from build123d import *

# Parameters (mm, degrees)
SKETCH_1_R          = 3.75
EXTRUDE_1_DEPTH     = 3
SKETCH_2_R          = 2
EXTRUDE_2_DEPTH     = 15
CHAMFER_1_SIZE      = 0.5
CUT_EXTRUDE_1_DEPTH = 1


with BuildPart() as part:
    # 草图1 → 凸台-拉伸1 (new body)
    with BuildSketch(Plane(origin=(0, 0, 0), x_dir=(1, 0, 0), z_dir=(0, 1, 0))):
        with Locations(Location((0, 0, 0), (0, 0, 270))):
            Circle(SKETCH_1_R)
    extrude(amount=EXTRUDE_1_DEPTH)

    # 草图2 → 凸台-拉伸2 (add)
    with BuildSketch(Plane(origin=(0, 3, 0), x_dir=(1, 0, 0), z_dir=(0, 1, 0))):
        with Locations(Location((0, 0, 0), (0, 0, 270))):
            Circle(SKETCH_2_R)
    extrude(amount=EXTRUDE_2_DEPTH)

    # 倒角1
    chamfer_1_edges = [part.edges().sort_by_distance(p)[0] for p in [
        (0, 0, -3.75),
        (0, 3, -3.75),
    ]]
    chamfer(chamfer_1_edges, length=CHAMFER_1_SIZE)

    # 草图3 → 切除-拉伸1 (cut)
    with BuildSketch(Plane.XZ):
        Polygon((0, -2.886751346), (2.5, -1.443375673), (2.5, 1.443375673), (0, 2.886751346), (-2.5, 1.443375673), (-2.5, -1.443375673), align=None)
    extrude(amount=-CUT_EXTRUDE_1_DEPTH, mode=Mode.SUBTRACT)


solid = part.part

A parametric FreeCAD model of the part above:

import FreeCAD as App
import Part
import Sketcher
from FreeCAD import Vector
Q = App.Units.Quantity


def edges_at(feature, points):
    """Names of the edges that pass closest to the given points."""
    edges = feature.Shape.Edges
    near = lambda p: min(range(len(edges)), key=lambda i: edges[i].distToShape(Part.Vertex(*p))[0])
    return sorted({f"Edge{near(p) + 1}" for p in points})

doc = App.newDocument("Part")
body = doc.addObject("PartDesign::Body", "Body")

sketch1 = doc.addObject("Sketcher::SketchObject", "Sketch")
body.addObject(sketch1)
sketch1.AttachmentSupport = (doc.XZ_Plane, [""])
sketch1.MapMode = "FlatFace"
sketch1.addGeometry(Part.Circle(Vector(0, 0, 0), Vector(0, 0, 1), 3.75), False)
sketch1.addConstraint(Sketcher.Constraint("Coincident", 0, 3, -1, 1))
sketch1.addConstraint(Sketcher.Constraint("Diameter", 0, 7.5))
pad1 = doc.addObject("PartDesign::Pad", "Pad")
body.addObject(pad1)
pad1.Profile = sketch1
pad1.Length = 3
pad1.Reversed = True

sketch2 = doc.addObject("Sketcher::SketchObject", "Sketch001")
body.addObject(sketch2)
sketch2.AttachmentSupport = (doc.XZ_Plane, [""])
sketch2.MapMode = "FlatFace"
sketch2.AttachmentOffset = App.Placement(Vector(0, 0, -3), App.Rotation())
sketch2.addGeometry(Part.Circle(Vector(0, 0, 0), Vector(0, 0, 1), 2), False)
sketch2.addConstraint(Sketcher.Constraint("Coincident", 0, 3, -1, 1))
sketch2.addConstraint(Sketcher.Constraint("Diameter", 0, 4.0))
pad2 = doc.addObject("PartDesign::Pad", "Pad001")
body.addObject(pad2)
pad2.Profile = sketch2
pad2.Length = 15
pad2.Reversed = True
doc.recompute()

chamfer = doc.addObject("PartDesign::Chamfer", "Chamfer")
body.addObject(chamfer)
chamfer.Base = (pad2, edges_at(pad2, [(0, 0, -3.75), (0, 3, -3.75)]))
chamfer.Size = 0.5

sketch3 = doc.addObject("Sketcher::SketchObject", "Sketch002")
body.addObject(sketch3)
sketch3.AttachmentSupport = (doc.XZ_Plane, [""])
sketch3.MapMode = "FlatFace"
sketch3.addGeometry(Part.LineSegment(Vector(0, -2.886751, 0), Vector(2.5, -1.443376, 0)), False)
sketch3.addGeometry(Part.LineSegment(Vector(2.5, -1.443376, 0), Vector(2.5, 1.443376, 0)), False)
sketch3.addGeometry(Part.LineSegment(Vector(2.5, 1.443376, 0), Vector(0, 2.886751, 0)), False)
sketch3.addGeometry(Part.LineSegment(Vector(0, 2.886751, 0), Vector(-2.5, 1.443376, 0)), False)
sketch3.addGeometry(Part.LineSegment(Vector(-2.5, 1.443376, 0), Vector(-2.5, -1.443376, 0)), False)
sketch3.addGeometry(Part.LineSegment(Vector(-2.5, -1.443376, 0), Vector(0, -2.886751, 0)), False)
sketch3.addConstraint(Sketcher.Constraint("Coincident", 0, 2, 1, 1))
sketch3.addConstraint(Sketcher.Constraint("Coincident", 1, 2, 2, 1))
sketch3.addConstraint(Sketcher.Constraint("Coincident", 2, 2, 3, 1))
sketch3.addConstraint(Sketcher.Constraint("Coincident", 3, 2, 4, 1))
sketch3.addConstraint(Sketcher.Constraint("Coincident", 4, 2, 5, 1))
sketch3.addConstraint(Sketcher.Constraint("Coincident", 5, 2, 0, 1))
sketch3.addConstraint(Sketcher.Constraint("Vertical", 1))
sketch3.addConstraint(Sketcher.Constraint("Vertical", 4))
sketch3.addConstraint(Sketcher.Constraint("Symmetric", 0, 2, 3, 2, -1, 1))
sketch3.addConstraint(Sketcher.Constraint("Symmetric", 2, 2, 5, 2, -1, 1))
sketch3.addConstraint(Sketcher.Constraint("PointOnObject", 2, 2, -2))
sketch3.addConstraint(Sketcher.Constraint("Parallel", 2, 5))
sketch3.addConstraint(Sketcher.Constraint("Horizontal", 1, 2, 3, 2))
sketch3.addConstraint(Sketcher.Constraint("Angle", 0, Q("30 deg")))
sketch3.addConstraint(Sketcher.Constraint("DistanceX", 3, 2, 1, 2, 5.0))
sketch3.addConstraint(Sketcher.Constraint("DistanceY", 1, 1, 1, 2, 2.886751))
pocket1 = doc.addObject("PartDesign::Pocket", "Pocket")
body.addObject(pocket1)
pocket1.Profile = sketch3
pocket1.Length = 1

doc.recompute()
